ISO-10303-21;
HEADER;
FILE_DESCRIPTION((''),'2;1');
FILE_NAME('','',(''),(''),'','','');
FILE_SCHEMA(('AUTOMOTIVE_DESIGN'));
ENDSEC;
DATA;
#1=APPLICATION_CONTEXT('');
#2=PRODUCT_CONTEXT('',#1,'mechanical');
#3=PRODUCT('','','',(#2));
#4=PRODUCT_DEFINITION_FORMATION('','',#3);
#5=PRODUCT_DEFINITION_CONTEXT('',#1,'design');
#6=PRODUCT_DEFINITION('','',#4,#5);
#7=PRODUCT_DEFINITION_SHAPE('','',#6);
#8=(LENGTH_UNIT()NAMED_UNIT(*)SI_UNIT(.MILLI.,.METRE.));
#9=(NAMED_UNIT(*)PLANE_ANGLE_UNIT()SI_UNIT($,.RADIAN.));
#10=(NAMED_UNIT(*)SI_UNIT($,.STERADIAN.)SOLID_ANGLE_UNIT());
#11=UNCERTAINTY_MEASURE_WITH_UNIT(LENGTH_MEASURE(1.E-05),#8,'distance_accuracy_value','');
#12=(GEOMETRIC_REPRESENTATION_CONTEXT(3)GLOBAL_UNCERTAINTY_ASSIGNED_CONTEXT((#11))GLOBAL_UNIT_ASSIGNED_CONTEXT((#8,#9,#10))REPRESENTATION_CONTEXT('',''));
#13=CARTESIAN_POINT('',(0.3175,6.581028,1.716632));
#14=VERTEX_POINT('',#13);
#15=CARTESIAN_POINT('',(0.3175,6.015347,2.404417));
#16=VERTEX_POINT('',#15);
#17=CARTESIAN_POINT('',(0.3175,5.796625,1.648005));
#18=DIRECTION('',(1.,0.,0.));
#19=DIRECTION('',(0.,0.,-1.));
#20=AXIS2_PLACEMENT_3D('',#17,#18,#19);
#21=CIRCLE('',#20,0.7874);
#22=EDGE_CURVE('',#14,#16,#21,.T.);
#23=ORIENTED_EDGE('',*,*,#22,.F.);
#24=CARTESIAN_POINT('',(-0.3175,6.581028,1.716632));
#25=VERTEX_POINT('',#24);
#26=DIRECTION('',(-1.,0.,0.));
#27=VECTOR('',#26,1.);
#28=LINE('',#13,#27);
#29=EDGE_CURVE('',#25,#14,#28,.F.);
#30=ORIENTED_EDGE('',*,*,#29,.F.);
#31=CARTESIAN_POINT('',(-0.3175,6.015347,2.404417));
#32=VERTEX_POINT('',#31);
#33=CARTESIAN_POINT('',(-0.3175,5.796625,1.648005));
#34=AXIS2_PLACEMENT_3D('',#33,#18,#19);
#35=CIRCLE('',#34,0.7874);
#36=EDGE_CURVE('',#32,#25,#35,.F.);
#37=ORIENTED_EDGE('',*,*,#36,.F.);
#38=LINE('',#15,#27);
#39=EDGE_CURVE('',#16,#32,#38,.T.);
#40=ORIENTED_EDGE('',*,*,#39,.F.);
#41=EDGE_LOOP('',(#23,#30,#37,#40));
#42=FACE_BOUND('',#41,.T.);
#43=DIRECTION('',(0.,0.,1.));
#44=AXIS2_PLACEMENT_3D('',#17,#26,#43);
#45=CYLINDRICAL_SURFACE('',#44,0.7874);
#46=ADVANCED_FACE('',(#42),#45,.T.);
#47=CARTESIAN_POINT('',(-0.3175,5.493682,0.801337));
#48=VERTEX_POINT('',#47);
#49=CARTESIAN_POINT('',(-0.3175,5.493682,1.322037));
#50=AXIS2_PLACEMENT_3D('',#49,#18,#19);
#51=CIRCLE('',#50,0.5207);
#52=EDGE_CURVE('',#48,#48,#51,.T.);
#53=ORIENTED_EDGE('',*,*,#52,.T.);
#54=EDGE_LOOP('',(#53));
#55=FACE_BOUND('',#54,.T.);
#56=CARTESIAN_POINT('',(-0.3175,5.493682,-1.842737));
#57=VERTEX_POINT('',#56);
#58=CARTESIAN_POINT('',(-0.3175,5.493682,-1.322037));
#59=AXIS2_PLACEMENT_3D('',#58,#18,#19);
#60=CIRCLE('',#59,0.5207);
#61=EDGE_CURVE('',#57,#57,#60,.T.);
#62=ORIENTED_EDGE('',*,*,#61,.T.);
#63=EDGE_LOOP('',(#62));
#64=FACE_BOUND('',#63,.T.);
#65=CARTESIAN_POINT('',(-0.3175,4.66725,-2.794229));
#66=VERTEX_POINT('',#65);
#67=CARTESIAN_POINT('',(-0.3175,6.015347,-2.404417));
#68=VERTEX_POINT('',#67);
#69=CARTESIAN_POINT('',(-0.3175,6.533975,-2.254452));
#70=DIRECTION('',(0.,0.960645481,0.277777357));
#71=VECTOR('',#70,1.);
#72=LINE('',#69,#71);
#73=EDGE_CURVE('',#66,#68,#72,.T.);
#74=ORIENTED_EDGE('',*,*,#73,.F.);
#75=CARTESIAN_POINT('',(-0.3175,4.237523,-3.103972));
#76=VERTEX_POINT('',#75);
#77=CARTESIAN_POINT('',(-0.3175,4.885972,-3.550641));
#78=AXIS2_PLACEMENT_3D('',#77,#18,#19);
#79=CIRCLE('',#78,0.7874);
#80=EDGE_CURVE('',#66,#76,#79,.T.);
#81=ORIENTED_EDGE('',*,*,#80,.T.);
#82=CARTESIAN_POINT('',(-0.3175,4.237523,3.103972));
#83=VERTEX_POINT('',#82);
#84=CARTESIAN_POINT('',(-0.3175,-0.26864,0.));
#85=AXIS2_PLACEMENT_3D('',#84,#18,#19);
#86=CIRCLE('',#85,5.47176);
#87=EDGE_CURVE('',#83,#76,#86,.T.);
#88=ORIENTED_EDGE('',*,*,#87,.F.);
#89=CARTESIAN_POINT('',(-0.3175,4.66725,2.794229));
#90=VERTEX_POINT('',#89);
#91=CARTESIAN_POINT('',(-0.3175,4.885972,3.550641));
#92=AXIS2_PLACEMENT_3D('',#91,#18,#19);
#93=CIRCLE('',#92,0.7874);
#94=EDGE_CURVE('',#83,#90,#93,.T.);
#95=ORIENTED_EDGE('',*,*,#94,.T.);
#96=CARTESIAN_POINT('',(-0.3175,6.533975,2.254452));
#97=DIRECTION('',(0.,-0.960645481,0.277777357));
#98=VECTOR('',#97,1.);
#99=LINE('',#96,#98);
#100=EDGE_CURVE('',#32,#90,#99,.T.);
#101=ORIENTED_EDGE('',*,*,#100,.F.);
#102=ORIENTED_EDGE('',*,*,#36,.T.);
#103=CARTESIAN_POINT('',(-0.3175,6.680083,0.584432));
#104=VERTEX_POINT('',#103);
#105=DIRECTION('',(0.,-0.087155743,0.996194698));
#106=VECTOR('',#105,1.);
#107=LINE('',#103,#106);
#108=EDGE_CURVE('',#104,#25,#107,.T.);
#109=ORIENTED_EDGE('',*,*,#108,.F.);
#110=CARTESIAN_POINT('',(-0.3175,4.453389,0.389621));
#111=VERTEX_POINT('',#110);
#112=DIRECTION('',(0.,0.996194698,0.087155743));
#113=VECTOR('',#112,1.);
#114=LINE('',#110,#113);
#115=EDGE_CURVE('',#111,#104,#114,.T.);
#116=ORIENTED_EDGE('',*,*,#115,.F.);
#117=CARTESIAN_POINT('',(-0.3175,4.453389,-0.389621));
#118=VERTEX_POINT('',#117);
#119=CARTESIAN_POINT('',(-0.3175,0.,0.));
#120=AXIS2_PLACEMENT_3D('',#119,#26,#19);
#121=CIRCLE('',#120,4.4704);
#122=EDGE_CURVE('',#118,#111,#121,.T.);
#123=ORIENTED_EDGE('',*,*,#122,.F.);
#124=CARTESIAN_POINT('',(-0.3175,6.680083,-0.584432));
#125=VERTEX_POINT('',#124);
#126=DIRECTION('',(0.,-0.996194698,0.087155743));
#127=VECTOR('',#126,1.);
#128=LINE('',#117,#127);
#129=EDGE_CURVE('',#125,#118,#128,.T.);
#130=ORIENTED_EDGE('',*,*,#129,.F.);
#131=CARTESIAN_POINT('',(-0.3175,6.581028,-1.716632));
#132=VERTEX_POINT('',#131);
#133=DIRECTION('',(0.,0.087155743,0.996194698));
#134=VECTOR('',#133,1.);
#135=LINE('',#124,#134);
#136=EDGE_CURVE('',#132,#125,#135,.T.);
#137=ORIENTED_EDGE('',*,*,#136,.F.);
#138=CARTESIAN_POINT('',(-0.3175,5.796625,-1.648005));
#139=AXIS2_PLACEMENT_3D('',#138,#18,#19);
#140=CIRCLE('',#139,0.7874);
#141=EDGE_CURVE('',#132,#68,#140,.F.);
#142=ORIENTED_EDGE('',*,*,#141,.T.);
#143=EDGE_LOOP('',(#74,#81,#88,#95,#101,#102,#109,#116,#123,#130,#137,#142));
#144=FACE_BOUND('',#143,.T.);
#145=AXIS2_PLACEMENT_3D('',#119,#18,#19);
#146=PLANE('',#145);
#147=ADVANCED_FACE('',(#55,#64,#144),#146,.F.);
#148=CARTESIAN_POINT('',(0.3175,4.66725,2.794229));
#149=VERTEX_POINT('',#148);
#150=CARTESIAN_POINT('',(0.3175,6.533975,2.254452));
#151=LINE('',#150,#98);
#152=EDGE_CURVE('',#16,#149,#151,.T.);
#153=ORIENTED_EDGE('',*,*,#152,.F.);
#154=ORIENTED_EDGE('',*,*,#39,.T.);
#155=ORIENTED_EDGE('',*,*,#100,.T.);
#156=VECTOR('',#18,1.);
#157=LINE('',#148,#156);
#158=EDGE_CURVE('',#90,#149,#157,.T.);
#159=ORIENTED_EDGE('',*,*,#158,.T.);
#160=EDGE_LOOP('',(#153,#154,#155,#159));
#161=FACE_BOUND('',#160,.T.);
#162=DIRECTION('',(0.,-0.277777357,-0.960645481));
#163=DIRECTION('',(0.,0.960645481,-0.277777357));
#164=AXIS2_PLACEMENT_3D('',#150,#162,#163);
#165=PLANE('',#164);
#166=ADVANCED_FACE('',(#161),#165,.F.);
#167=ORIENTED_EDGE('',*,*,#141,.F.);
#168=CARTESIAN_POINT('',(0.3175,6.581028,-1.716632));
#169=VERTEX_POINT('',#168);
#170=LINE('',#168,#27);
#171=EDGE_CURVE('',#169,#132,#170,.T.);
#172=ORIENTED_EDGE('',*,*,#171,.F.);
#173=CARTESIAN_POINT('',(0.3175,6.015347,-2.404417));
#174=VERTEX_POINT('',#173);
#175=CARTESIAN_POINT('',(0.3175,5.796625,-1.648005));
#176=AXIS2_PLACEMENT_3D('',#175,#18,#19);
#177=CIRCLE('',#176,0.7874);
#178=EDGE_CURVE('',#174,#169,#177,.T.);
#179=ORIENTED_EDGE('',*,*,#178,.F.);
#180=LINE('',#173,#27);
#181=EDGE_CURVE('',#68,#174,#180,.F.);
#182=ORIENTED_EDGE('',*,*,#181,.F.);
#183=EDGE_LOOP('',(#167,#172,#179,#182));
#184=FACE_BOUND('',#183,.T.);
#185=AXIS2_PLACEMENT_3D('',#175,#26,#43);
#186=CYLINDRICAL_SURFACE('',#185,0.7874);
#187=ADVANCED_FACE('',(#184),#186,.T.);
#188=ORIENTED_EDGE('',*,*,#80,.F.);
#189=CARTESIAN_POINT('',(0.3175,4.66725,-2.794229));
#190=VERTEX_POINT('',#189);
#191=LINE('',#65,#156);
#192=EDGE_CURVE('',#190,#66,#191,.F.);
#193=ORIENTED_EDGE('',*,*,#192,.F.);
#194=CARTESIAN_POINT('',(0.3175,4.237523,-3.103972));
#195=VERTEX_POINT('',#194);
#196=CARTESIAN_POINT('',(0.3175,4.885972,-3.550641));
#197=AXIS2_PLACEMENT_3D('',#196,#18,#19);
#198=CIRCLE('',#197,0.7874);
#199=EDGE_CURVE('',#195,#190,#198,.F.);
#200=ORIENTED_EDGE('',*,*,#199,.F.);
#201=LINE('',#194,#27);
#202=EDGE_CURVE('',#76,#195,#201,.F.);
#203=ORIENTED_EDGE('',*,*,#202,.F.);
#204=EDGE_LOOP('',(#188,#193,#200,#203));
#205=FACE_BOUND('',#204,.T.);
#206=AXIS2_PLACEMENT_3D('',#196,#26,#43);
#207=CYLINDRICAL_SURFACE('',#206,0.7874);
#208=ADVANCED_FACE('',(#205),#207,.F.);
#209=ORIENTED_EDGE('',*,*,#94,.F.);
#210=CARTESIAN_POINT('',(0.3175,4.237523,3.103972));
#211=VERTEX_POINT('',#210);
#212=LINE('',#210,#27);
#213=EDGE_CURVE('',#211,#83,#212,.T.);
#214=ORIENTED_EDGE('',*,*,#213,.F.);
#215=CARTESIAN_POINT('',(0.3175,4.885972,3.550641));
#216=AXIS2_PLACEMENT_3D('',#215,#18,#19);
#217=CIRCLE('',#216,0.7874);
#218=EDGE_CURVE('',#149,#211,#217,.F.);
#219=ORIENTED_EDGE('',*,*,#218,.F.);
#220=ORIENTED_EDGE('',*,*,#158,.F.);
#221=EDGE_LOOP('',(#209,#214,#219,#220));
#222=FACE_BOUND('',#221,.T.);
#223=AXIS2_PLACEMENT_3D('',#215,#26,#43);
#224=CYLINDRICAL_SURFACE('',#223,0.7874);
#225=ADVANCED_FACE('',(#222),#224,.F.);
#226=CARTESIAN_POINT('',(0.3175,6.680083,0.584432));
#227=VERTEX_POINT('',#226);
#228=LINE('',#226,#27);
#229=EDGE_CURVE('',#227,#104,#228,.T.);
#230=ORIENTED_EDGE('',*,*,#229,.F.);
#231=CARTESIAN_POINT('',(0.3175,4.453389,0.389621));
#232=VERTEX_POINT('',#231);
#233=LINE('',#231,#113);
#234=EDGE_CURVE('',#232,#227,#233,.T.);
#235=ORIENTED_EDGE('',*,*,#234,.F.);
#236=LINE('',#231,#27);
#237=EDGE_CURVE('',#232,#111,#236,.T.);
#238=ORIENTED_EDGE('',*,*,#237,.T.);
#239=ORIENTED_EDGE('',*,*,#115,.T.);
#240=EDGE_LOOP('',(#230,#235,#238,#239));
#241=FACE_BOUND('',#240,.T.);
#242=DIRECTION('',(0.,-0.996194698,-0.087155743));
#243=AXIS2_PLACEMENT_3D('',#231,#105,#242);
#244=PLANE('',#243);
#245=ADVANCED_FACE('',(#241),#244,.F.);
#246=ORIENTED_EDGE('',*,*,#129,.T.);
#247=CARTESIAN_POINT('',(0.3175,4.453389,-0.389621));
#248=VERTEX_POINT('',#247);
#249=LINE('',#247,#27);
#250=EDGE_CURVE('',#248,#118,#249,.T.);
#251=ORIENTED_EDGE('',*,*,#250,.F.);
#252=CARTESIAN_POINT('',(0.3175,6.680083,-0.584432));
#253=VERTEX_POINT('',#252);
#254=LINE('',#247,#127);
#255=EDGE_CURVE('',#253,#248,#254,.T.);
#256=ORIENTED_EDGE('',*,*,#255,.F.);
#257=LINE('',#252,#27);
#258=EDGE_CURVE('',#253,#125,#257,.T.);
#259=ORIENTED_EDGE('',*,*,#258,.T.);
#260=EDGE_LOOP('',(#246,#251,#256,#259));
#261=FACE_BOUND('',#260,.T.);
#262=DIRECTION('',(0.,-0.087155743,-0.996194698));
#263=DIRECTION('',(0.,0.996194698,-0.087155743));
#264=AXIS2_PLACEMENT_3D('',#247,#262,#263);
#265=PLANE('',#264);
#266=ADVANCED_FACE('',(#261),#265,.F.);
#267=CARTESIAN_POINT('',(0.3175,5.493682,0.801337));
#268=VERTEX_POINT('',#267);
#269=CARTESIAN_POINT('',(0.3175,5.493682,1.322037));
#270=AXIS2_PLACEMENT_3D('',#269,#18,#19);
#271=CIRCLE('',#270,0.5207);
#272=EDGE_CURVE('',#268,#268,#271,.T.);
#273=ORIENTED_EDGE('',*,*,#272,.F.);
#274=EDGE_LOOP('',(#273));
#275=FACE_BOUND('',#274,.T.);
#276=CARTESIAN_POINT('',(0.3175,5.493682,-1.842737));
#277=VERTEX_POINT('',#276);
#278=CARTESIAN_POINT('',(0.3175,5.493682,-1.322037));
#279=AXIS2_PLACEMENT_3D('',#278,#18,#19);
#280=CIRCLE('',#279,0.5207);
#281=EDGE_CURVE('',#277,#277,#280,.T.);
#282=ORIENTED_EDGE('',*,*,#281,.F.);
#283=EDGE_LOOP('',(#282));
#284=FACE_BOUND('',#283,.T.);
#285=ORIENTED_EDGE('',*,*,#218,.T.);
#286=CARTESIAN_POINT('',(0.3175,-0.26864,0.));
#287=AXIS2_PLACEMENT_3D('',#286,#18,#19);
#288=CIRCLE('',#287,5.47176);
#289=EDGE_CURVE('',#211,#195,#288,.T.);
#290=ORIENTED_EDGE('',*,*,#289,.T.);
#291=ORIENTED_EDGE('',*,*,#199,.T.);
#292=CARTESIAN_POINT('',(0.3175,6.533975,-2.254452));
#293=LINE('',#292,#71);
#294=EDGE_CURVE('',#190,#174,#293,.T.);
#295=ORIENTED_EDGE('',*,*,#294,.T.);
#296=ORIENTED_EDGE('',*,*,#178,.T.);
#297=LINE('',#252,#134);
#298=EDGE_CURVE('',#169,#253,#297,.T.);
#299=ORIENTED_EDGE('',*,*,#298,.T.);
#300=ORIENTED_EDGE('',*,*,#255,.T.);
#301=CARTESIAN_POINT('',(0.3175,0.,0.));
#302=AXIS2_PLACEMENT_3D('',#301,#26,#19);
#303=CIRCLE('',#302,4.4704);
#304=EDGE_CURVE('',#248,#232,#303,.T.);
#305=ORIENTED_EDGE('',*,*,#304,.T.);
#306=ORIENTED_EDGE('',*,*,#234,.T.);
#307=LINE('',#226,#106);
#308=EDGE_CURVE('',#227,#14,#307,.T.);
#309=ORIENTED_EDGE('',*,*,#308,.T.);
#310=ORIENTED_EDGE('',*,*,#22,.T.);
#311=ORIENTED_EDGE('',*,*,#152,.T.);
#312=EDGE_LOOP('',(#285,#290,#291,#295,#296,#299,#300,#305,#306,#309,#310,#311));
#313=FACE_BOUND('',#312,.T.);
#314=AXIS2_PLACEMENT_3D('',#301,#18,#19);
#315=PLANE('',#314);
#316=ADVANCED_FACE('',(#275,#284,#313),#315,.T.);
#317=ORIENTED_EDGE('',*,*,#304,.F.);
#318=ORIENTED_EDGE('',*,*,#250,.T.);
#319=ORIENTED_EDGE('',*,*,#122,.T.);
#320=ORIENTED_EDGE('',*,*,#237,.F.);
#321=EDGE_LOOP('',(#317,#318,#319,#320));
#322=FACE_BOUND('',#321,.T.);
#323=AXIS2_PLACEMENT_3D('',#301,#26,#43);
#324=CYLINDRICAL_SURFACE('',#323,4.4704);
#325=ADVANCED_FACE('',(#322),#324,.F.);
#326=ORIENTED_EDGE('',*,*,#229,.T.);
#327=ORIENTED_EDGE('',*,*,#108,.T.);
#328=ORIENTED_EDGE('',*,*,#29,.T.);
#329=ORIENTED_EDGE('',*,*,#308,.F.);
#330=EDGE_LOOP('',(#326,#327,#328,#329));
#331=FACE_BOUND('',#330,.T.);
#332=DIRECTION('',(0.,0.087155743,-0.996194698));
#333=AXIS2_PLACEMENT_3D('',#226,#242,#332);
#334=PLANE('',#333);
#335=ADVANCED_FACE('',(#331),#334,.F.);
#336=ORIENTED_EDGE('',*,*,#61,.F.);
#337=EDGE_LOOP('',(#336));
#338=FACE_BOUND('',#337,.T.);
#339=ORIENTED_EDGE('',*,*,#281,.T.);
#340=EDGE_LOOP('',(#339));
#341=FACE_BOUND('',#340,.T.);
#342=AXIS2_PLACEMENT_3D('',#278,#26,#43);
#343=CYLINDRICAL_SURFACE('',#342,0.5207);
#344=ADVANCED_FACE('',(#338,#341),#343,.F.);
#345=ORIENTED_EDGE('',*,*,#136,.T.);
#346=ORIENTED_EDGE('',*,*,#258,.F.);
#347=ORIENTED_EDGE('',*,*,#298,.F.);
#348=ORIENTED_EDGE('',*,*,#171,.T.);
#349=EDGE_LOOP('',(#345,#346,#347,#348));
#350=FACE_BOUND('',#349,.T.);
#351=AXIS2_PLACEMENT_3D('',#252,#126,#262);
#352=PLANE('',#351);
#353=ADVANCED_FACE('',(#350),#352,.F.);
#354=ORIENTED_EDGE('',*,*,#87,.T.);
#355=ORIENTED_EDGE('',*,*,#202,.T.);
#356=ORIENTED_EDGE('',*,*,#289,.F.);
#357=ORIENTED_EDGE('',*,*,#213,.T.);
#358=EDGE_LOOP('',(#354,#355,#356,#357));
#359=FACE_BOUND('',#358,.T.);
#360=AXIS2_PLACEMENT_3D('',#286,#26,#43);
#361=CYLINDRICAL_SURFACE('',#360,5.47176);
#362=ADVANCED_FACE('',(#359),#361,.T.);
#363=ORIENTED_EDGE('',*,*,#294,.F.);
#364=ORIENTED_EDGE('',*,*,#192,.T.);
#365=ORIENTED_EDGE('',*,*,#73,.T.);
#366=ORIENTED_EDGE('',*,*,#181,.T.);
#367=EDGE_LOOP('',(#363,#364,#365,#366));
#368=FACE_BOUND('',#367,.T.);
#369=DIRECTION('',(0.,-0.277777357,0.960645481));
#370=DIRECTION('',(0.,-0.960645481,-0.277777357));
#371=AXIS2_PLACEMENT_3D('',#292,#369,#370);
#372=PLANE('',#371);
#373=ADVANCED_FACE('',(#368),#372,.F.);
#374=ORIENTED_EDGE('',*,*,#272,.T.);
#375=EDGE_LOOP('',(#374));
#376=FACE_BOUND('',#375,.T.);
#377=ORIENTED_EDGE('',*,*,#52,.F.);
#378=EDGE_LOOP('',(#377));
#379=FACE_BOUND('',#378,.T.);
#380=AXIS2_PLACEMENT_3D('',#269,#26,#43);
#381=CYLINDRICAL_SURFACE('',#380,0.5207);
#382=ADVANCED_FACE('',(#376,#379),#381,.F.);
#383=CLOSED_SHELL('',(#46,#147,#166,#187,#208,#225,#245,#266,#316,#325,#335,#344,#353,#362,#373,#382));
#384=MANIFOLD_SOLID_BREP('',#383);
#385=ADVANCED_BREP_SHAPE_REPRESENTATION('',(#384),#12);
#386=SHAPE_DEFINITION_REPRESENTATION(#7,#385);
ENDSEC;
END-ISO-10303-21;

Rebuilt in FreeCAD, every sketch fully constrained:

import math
import FreeCAD as App
import Part
import Sketcher

V = App.Vector
Q = App.Units.Quantity


def edges_at(feature, points):
    """Names of the edges that pass closest to the given points."""
    edges = feature.Shape.Edges
    near = lambda p: min(range(len(edges)), key=lambda i: edges[i].distToShape(Part.Vertex(*p))[0])
    return sorted({f"Edge{near(p) + 1}" for p in points})

doc = App.newDocument("Part")
body = doc.addObject("PartDesign::Body", "Body")

# Sketch on YZ plane
sketch1 = body.newObject("Sketcher::SketchObject", "Sketch")
sketch1.AttachmentSupport = (doc.getObject("YZ_Plane"), [""])
sketch1.MapMode = "FlatFace"
sketch1.addGeometry(Part.LineSegment(V(4.5, 0.4, 0), V(6.7, 0.6, 0)), False)
sketch1.addGeometry(Part.LineSegment(V(6.7, 0.6, 0), V(6.5, 2.3, 0)), False)
sketch1.addGeometry(Part.LineSegment(V(6.5, 2.3, 0), V(4.4, 2.9, 0)), False)
sketch1.addGeometry(Part.ArcOfCircle(Part.Circle(V(-0.3, 0, 0), V(0, 0, 1), 5.5), math.radians(32), math.radians(328)), False)
sketch1.addGeometry(Part.LineSegment(V(4.4, -2.9, 0), V(6.5, -2.3, 0)), False)
sketch1.addGeometry(Part.LineSegment(V(6.5, -2.3, 0), V(6.7, -0.6, 0)), False)
sketch1.addGeometry(Part.LineSegment(V(6.7, -0.6, 0), V(4.5, -0.4, 0)), False)
sketch1.addGeometry(Part.ArcOfCircle(Part.Circle(V(0, 0, 0), V(0, 0, 1), 4.5), math.radians(5), math.radians(355)), False)
sketch1.addGeometry(Part.Circle(V(5.5, 1.3, 0), V(0, 0, 1), 0.5), False)
sketch1.addGeometry(Part.Circle(V(5.5, -1.3, 0), V(0, 0, 1), 0.5), False)
sketch1.addConstraint(Sketcher.Constraint("Coincident", 0, 2, 1, 1))
sketch1.addConstraint(Sketcher.Constraint("Coincident", 1, 2, 2, 1))
sketch1.addConstraint(Sketcher.Constraint("Coincident", 2, 2, 3, 1))
sketch1.addConstraint(Sketcher.Constraint("Coincident", 3, 2, 4, 1))
sketch1.addConstraint(Sketcher.Constraint("Coincident", 4, 2, 5, 1))
sketch1.addConstraint(Sketcher.Constraint("Coincident", 5, 2, 6, 1))
sketch1.addConstraint(Sketcher.Constraint("Coincident", 6, 2, 7, 2))
sketch1.addConstraint(Sketcher.Constraint("Coincident", 7, 1, 0, 1))
sketch1.addConstraint(Sketcher.Constraint("Coincident", 7, 3, -1, 1))
sketch1.addConstraint(Sketcher.Constraint("Equal", 8, 9))
sketch1.addConstraint(Sketcher.Constraint("Symmetric", 8, 3, 9, 3, -1))
sketch1.addConstraint(Sketcher.Constraint("Symmetric", 2, 2, 3, 2, -1))
sketch1.addConstraint(Sketcher.Constraint("Symmetric", 1, 2, 4, 2, -1))
sketch1.addConstraint(Sketcher.Constraint("Symmetric", 0, 2, 5, 2, -1))
sketch1.addConstraint(Sketcher.Constraint("Perpendicular", 0, 1))
sketch1.addConstraint(Sketcher.Constraint("Perpendicular", 5, 6))
sketch1.addConstraint(Sketcher.Constraint("Equal", 0, 2))
sketch1.addConstraint(Sketcher.Constraint("Diameter", 8, Q("0.041 in")))
sketch1.addConstraint(Sketcher.Constraint("Angle", 0, Q("5 deg")))
sketch1.addConstraint(Sketcher.Constraint("Radius", 7, Q("0.176 in")))
sketch1.addConstraint(Sketcher.Constraint("Distance", 0, Q("0.088 in")))
sketch1.addConstraint(Sketcher.Constraint("Distance", 1, Q("0.066 in")))
sketch1.addConstraint(Sketcher.Constraint("Radius", 3, 5.47176))
sketch1.addConstraint(Sketcher.Constraint("DistanceX", 8, 3, 0, 2, 1.186401))
sketch1.addConstraint(Sketcher.Constraint("DistanceX", 3, 3, -1, 1, 0.26864))
sketch1.addConstraint(Sketcher.Constraint("DistanceY", -1, 1, 0, 2, 0.584432))
sketch1.addConstraint(Sketcher.Constraint("DistanceY", 9, 3, 0, 2, 1.906468))
pad1 = body.newObject("PartDesign::Pad", "Pad")
pad1.Profile = sketch1
pad1.Length = Q("0.025 in")
pad1.Midplane = True
doc.recompute()

fillet = body.newObject("PartDesign::Fillet", "Fillet")
fillet.Base = (pad1, edges_at(pad1, [
    (0, 6.534, -2.254),
    (0, 4.387, -2.875),
    (0, 4.387, 2.875),
    (0, 6.534, 2.254),
]))
fillet.Radius = Q("0.031 in")

doc.recompute()
